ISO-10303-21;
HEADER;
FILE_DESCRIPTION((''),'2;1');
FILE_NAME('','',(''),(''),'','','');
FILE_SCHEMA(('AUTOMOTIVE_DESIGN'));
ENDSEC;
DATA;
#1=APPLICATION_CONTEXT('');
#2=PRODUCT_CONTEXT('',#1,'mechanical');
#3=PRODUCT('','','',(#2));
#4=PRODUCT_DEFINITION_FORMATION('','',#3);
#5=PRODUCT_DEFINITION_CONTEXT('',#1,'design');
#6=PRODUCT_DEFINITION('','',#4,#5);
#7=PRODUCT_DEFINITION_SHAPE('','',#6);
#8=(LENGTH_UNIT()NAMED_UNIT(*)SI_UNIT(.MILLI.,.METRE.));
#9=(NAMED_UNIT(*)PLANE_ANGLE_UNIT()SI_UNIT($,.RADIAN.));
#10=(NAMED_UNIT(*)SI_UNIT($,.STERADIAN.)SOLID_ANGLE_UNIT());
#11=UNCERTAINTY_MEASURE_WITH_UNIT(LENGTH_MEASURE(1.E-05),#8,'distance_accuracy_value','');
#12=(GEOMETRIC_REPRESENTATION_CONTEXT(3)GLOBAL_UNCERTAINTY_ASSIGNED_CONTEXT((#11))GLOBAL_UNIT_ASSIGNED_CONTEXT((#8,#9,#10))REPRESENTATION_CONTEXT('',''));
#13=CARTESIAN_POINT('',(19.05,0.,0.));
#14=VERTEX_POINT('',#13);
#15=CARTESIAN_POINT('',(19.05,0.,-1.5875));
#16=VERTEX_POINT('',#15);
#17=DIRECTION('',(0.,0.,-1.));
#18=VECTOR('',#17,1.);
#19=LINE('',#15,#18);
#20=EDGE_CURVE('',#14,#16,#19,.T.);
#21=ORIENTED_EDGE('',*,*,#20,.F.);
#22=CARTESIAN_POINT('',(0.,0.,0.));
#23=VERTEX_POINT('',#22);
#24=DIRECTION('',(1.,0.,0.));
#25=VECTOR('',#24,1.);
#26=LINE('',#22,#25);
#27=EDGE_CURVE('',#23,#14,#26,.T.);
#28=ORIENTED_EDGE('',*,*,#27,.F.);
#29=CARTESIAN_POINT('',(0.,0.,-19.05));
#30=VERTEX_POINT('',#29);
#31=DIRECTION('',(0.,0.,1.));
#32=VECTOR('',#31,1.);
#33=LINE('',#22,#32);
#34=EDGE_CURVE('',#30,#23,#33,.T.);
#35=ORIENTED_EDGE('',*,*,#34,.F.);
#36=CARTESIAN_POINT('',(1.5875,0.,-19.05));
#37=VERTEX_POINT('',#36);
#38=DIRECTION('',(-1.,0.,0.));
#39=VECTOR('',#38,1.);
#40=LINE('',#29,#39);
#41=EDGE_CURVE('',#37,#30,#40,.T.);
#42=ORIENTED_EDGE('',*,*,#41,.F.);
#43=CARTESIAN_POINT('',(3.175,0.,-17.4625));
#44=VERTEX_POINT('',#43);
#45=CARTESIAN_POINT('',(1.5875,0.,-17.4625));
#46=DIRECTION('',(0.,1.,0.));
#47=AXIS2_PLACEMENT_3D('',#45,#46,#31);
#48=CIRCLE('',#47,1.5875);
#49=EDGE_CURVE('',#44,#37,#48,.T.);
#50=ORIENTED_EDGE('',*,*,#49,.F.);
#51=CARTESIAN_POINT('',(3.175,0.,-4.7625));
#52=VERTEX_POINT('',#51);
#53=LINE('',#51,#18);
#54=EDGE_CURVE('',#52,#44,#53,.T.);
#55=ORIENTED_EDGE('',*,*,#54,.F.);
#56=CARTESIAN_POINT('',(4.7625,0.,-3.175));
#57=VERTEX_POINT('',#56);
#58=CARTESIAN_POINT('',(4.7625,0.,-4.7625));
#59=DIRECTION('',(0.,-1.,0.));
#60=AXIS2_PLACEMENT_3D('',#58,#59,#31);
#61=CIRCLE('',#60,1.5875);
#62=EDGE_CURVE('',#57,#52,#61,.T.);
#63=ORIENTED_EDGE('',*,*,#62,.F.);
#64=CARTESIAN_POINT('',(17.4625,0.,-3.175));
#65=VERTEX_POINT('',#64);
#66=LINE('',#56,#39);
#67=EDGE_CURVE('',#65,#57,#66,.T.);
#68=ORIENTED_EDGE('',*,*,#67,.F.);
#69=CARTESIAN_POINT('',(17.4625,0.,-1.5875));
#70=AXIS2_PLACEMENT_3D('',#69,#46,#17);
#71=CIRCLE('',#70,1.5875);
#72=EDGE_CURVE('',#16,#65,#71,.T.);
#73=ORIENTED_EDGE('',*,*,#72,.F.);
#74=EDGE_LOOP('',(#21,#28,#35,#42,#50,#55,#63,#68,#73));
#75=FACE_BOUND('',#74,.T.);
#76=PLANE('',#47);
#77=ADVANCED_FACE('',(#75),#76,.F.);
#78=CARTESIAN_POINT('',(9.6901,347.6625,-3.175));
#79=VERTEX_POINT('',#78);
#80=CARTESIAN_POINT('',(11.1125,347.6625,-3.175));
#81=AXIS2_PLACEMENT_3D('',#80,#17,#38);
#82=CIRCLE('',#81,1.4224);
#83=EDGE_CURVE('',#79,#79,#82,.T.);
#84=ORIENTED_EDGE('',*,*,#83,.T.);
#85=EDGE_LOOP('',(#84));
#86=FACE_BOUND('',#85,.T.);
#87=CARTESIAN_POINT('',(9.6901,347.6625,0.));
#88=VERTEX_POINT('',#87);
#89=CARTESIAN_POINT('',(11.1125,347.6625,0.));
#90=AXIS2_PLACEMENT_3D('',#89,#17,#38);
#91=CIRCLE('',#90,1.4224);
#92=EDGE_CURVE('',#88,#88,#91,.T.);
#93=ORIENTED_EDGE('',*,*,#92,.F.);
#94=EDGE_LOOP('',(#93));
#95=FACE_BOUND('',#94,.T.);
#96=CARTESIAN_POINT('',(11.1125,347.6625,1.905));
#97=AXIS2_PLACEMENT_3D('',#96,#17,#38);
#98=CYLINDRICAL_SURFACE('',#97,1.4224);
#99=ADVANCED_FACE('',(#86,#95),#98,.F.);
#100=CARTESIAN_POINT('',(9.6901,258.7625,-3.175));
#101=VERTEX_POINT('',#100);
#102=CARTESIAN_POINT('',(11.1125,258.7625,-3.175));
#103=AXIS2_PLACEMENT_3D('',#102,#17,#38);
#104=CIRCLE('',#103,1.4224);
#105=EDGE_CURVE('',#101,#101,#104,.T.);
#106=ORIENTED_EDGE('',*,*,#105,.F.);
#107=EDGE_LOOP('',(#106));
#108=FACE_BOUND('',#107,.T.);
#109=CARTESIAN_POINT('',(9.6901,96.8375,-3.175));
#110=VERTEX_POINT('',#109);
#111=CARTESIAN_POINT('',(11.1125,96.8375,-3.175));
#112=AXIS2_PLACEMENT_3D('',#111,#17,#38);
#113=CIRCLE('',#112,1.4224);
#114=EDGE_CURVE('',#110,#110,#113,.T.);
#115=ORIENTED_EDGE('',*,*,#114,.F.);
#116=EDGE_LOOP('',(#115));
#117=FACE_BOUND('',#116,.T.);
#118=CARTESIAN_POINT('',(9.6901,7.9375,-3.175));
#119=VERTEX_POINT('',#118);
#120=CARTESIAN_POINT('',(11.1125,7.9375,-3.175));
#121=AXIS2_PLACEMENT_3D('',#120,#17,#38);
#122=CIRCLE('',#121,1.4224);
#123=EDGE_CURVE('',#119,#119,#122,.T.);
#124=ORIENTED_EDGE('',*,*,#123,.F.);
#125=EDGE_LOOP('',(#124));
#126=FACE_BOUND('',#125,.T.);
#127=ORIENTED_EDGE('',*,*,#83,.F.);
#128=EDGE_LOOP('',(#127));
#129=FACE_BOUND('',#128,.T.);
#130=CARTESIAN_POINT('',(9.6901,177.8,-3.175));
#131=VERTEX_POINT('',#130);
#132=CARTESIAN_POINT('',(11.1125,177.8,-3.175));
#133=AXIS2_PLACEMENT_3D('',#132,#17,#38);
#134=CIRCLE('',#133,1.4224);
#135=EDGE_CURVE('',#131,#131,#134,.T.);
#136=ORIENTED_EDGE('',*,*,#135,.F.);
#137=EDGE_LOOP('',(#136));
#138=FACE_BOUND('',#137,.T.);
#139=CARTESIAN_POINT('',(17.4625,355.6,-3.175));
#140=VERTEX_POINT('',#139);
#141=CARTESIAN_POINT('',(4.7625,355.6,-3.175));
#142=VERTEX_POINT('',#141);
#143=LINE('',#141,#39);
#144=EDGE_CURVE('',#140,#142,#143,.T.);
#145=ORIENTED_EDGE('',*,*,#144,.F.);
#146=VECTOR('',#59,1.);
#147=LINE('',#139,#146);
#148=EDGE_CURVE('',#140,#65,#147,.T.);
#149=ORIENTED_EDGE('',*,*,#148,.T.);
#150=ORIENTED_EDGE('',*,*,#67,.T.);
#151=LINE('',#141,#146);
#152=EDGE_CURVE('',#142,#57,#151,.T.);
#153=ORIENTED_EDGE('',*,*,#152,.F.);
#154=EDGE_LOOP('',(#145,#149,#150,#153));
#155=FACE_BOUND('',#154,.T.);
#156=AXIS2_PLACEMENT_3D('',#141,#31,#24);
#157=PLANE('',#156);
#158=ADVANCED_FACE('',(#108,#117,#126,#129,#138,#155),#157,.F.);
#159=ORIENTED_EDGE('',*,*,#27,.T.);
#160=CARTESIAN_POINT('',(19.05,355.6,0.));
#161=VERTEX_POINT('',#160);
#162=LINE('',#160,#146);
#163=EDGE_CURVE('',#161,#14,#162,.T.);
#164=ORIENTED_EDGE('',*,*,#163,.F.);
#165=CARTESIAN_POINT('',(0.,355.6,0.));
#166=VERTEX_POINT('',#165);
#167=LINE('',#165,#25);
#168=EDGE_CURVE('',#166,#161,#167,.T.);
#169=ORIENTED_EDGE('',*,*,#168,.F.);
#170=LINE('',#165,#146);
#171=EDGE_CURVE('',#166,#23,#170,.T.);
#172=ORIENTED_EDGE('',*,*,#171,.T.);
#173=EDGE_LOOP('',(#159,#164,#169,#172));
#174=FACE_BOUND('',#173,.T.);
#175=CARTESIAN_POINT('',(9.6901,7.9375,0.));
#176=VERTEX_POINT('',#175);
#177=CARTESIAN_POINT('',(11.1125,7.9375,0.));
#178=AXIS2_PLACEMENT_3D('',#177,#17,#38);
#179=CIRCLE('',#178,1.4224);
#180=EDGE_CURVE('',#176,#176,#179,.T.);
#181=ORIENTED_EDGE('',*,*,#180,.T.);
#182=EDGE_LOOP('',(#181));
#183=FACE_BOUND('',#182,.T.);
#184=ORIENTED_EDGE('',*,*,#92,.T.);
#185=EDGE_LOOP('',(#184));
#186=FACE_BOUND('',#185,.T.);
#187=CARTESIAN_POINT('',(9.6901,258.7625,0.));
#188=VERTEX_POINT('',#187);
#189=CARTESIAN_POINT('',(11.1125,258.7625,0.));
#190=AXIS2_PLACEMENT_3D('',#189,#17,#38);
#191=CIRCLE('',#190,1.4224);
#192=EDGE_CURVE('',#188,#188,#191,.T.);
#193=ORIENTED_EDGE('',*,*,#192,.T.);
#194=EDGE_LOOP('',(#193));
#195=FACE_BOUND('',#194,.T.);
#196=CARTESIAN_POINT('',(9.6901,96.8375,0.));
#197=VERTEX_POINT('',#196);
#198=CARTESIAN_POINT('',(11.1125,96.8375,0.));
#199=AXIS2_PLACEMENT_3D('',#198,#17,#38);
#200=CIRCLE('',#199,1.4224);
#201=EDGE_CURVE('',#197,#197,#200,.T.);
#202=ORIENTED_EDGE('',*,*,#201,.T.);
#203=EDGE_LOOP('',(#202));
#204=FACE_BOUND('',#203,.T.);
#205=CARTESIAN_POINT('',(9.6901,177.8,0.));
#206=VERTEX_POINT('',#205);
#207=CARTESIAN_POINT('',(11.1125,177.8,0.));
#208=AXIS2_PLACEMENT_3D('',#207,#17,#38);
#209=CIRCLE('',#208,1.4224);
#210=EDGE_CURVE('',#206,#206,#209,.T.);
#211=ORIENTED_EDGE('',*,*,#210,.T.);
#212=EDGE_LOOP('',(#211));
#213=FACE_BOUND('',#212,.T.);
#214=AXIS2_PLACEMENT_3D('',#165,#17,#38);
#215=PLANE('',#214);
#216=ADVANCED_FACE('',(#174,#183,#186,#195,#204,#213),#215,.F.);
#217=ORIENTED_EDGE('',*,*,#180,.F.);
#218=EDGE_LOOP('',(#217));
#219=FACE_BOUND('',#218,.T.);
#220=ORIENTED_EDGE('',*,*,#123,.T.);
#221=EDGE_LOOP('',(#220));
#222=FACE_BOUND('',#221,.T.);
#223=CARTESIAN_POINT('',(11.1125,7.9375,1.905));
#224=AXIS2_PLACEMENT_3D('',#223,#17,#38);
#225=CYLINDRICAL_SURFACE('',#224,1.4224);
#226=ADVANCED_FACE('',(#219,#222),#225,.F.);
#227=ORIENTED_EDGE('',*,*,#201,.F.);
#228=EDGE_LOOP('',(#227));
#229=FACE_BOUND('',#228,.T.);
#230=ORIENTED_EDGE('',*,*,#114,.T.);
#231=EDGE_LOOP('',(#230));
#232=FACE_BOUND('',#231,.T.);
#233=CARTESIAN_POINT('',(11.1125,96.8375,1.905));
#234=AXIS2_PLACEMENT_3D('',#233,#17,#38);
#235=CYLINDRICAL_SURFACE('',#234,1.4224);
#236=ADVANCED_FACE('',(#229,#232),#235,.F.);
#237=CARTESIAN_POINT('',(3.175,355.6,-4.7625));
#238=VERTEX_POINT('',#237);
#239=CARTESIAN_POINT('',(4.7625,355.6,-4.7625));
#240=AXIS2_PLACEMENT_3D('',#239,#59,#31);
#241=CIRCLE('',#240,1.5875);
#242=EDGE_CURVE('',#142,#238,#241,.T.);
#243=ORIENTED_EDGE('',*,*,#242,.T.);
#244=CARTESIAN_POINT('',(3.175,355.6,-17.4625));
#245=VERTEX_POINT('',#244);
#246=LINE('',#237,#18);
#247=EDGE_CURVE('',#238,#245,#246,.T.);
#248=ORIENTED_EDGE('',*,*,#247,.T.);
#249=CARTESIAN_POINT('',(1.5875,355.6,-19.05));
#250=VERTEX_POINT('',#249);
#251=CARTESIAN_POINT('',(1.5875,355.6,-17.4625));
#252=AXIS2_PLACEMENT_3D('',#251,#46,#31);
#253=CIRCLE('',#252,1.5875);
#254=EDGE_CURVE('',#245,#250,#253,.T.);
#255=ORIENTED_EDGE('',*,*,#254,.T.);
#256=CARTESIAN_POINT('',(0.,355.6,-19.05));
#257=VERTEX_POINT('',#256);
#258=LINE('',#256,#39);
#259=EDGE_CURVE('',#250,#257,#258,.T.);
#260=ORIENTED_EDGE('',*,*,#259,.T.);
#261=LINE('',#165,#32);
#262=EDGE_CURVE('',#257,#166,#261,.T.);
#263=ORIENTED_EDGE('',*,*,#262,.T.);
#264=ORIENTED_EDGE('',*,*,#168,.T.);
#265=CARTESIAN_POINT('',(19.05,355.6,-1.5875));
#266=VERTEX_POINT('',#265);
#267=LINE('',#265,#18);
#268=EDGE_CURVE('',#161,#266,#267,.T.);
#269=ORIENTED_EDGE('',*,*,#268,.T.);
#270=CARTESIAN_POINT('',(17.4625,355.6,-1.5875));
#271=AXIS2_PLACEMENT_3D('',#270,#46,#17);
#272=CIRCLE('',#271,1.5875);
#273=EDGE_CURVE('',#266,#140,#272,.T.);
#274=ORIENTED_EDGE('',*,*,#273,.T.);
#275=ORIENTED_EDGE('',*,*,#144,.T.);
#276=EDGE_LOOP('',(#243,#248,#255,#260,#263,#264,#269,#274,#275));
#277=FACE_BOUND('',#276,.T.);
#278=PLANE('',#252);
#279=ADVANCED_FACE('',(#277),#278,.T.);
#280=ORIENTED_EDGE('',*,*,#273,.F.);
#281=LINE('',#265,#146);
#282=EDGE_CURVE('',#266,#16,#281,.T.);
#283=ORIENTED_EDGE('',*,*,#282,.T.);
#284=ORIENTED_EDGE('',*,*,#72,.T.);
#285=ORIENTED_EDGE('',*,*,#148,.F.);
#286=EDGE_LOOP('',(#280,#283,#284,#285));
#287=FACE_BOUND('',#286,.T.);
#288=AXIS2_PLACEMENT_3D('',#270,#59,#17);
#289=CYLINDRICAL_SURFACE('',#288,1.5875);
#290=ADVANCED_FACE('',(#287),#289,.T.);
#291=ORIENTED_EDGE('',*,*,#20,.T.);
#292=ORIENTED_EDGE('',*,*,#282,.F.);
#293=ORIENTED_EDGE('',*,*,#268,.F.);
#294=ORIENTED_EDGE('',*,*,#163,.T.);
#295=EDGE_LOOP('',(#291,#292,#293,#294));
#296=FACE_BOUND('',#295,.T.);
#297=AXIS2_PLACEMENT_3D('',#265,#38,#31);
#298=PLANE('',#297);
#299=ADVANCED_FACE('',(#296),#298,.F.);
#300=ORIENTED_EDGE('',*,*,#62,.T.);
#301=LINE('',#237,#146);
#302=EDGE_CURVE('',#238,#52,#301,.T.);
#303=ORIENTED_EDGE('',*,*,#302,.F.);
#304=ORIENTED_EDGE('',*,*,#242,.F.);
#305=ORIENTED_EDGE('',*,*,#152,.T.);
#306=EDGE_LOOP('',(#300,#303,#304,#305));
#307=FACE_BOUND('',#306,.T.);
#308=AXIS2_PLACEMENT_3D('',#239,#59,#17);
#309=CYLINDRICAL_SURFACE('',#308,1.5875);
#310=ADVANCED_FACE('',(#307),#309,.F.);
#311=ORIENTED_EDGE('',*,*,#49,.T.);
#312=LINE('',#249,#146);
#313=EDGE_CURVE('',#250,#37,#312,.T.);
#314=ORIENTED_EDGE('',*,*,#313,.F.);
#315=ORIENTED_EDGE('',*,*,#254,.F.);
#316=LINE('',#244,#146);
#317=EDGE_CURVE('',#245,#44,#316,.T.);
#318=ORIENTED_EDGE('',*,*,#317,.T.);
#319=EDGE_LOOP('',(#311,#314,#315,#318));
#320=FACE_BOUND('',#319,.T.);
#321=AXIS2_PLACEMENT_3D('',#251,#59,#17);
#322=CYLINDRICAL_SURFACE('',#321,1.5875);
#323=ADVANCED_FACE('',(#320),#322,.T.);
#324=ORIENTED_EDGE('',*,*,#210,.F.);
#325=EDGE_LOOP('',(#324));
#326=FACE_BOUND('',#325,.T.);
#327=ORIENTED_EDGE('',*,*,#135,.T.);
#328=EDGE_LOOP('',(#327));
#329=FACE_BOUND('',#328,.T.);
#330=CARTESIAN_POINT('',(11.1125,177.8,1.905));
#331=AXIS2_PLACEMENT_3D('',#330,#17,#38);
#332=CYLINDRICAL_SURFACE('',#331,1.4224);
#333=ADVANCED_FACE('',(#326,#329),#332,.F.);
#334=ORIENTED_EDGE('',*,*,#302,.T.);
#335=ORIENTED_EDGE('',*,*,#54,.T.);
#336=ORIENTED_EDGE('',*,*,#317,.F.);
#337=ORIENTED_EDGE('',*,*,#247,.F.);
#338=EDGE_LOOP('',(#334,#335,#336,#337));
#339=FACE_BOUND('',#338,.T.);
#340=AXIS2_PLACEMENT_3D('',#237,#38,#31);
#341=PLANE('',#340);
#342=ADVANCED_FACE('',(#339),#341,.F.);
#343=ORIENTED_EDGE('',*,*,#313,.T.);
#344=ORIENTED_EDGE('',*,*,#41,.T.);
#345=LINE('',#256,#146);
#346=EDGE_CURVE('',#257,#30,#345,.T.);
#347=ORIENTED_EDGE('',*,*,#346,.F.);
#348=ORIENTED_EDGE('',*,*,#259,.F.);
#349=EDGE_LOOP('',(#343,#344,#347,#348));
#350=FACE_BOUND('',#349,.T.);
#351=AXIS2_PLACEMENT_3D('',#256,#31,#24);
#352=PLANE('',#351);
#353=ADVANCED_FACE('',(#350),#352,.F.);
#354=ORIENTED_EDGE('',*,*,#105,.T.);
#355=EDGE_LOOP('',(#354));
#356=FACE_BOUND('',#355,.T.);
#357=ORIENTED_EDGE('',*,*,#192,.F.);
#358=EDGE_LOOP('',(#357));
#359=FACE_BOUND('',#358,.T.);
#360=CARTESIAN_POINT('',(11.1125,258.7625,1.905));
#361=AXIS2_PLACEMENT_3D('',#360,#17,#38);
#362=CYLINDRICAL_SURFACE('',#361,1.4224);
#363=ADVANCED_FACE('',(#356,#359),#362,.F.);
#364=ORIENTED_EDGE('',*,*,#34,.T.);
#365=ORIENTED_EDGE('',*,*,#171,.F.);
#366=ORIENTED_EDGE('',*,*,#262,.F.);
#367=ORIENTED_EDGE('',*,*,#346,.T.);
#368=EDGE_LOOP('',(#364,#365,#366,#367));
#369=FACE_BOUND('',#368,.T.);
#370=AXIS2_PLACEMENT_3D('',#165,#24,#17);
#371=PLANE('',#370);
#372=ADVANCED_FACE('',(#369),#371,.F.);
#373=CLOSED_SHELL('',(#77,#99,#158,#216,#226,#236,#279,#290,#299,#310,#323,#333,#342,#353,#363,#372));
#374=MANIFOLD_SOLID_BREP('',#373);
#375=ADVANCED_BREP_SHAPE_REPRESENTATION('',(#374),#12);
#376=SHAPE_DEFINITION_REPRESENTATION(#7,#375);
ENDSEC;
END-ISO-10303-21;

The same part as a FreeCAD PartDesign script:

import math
import FreeCAD as App
import Part
import Sketcher
Q = App.Units.Quantity

doc = App.newDocument("Part")
body = doc.addObject("PartDesign::Body", "Body")

# Sketch on XZ plane
sketch1 = body.newObject("Sketcher::SketchObject", "Sketch")
sketch1.AttachmentSupport = (doc.getObject("XZ_Plane"), [""])
sketch1.MapMode = "FlatFace"
sketch1.addGeometry([
    Part.LineSegment(App.Vector(0, 0, 0), App.Vector(19.1, 0, 0)),  # 0
    Part.LineSegment(App.Vector(19.1, 0, 0), App.Vector(19.1, -1.6, 0)),  # 1
    Part.ArcOfCircle(Part.Circle(App.Vector(17.5, -1.6, 0), App.Vector(0, 0, 1), 1.6), math.radians(-90), math.radians(0)),  # 2
    Part.LineSegment(App.Vector(17.5, -3.2, 0), App.Vector(4.8, -3.2, 0)),  # 3
    Part.ArcOfCircle(Part.Circle(App.Vector(4.8, -4.8, 0), App.Vector(0, 0, 1), 1.6), math.radians(90), math.radians(180)),  # 4
    Part.LineSegment(App.Vector(3.2, -4.8, 0), App.Vector(3.2, -17.5, 0)),  # 5
    Part.ArcOfCircle(Part.Circle(App.Vector(1.6, -17.5, 0), App.Vector(0, 0, 1), 1.6), math.radians(-90), math.radians(0)),  # 6
    Part.LineSegment(App.Vector(1.6, -19.1, 0), App.Vector(0, -19.1, 0)),  # 7
    Part.LineSegment(App.Vector(0, -19.1, 0), App.Vector(0, 0, 0)),  # 8
], False)
sketch1.addConstraint([
    Sketcher.Constraint("Coincident", 0, 2, 1, 1),
    Sketcher.Constraint("Tangent", 1, 2, 2, 2),
    Sketcher.Constraint("Tangent", 2, 1, 3, 1),
    Sketcher.Constraint("Tangent", 3, 2, 4, 1),
    Sketcher.Constraint("Tangent", 4, 2, 5, 1),
    Sketcher.Constraint("Tangent", 5, 2, 6, 2),
    Sketcher.Constraint("Tangent", 6, 1, 7, 1),
    Sketcher.Constraint("Coincident", 7, 2, 8, 1),
    Sketcher.Constraint("Coincident", 8, 2, 0, 1),
    Sketcher.Constraint("Horizontal", 0),
    Sketcher.Constraint("Vertical", 1),
    Sketcher.Constraint("Horizontal", 3),
    Sketcher.Constraint("Vertical", 5),
    Sketcher.Constraint("Horizontal", 7),
    Sketcher.Constraint("Vertical", 8),
    Sketcher.Constraint("Coincident", 8, 2, -1, 1),
    Sketcher.Constraint("Equal", 2, 4),
    Sketcher.Constraint("Equal", 4, 6),
    Sketcher.Constraint("Equal", 7, 1),
    Sketcher.Constraint("Equal", 3, 5),
    Sketcher.Constraint("DistanceX", 3, 2, 3, 1, Q("0.5 in")),
    Sketcher.Constraint("Radius", 2, Q("0.0625 in")),
    Sketcher.Constraint("DistanceX", 0, 1, 0, 2, Q("0.75 in")),
])
pad1 = body.newObject("PartDesign::Pad", "Pad")
pad1.Profile = sketch1
pad1.Length = Q("14 in")
pad1.Reversed = True

# Sketch on XY plane
sketch2 = body.newObject("Sketcher::SketchObject", "Sketch001")
sketch2.AttachmentSupport = (doc.getObject("XY_Plane"), [""])
sketch2.MapMode = "FlatFace"
sketch2.AttachmentOffset = App.Placement(App.Vector(0, 0, -0.125 * 25.4), App.Rotation())
sketch2.addGeometry([
    Part.Circle(App.Vector(11.1, 7.9, 0), App.Vector(0, 0, 1), 1.4),  # 0
    Part.Circle(App.Vector(11.1, 347.7, 0), App.Vector(0, 0, 1), 1.4),  # 1
    Part.Circle(App.Vector(11.1, 96.8, 0), App.Vector(0, 0, 1), 1.4),  # 2
    Part.Circle(App.Vector(11.1, 177.8, 0), App.Vector(0, 0, 1), 1.4),  # 3
    Part.Circle(App.Vector(11.1, 258.8, 0), App.Vector(0, 0, 1), 1.4),  # 4
], False)
sketch2.addConstraint([
    Sketcher.Constraint("Equal", 0, 1),
    Sketcher.Constraint("Equal", 1, 2),
    Sketcher.Constraint("Equal", 2, 3),
    Sketcher.Constraint("Equal", 3, 4),
    Sketcher.Constraint("Vertical", 0, 3, 1, 3),
    Sketcher.Constraint("Vertical", 1, 3, 2, 3),
    Sketcher.Constraint("Vertical", 2, 3, 3, 3),
    Sketcher.Constraint("Vertical", 3, 3, 4, 3),
    Sketcher.Constraint("Diameter", 0, Q("0.112 in")),
    Sketcher.Constraint("DistanceY", -1, 1, 3, 3, Q("7 in")),
    Sketcher.Constraint("DistanceY", 0, 3, 2, 3, Q("3.5 in")),
    Sketcher.Constraint("DistanceY", 4, 3, 1, 3, Q("3.5 in")),
    Sketcher.Constraint("DistanceX", -1, 1, 0, 3, Q("0.4375 in")),
    Sketcher.Constraint("DistanceY", -1, 1, 0, 3, Q("0.3125 in")),
    Sketcher.Constraint("DistanceY", -1, 1, 1, 3, Q("13.6875 in")),
])
pocket1 = body.newObject("PartDesign::Pocket", "Pocket")
pocket1.Profile = sketch2
pocket1.Length = Q("0.2 in")
pocket1.Reversed = True

doc.recompute()
